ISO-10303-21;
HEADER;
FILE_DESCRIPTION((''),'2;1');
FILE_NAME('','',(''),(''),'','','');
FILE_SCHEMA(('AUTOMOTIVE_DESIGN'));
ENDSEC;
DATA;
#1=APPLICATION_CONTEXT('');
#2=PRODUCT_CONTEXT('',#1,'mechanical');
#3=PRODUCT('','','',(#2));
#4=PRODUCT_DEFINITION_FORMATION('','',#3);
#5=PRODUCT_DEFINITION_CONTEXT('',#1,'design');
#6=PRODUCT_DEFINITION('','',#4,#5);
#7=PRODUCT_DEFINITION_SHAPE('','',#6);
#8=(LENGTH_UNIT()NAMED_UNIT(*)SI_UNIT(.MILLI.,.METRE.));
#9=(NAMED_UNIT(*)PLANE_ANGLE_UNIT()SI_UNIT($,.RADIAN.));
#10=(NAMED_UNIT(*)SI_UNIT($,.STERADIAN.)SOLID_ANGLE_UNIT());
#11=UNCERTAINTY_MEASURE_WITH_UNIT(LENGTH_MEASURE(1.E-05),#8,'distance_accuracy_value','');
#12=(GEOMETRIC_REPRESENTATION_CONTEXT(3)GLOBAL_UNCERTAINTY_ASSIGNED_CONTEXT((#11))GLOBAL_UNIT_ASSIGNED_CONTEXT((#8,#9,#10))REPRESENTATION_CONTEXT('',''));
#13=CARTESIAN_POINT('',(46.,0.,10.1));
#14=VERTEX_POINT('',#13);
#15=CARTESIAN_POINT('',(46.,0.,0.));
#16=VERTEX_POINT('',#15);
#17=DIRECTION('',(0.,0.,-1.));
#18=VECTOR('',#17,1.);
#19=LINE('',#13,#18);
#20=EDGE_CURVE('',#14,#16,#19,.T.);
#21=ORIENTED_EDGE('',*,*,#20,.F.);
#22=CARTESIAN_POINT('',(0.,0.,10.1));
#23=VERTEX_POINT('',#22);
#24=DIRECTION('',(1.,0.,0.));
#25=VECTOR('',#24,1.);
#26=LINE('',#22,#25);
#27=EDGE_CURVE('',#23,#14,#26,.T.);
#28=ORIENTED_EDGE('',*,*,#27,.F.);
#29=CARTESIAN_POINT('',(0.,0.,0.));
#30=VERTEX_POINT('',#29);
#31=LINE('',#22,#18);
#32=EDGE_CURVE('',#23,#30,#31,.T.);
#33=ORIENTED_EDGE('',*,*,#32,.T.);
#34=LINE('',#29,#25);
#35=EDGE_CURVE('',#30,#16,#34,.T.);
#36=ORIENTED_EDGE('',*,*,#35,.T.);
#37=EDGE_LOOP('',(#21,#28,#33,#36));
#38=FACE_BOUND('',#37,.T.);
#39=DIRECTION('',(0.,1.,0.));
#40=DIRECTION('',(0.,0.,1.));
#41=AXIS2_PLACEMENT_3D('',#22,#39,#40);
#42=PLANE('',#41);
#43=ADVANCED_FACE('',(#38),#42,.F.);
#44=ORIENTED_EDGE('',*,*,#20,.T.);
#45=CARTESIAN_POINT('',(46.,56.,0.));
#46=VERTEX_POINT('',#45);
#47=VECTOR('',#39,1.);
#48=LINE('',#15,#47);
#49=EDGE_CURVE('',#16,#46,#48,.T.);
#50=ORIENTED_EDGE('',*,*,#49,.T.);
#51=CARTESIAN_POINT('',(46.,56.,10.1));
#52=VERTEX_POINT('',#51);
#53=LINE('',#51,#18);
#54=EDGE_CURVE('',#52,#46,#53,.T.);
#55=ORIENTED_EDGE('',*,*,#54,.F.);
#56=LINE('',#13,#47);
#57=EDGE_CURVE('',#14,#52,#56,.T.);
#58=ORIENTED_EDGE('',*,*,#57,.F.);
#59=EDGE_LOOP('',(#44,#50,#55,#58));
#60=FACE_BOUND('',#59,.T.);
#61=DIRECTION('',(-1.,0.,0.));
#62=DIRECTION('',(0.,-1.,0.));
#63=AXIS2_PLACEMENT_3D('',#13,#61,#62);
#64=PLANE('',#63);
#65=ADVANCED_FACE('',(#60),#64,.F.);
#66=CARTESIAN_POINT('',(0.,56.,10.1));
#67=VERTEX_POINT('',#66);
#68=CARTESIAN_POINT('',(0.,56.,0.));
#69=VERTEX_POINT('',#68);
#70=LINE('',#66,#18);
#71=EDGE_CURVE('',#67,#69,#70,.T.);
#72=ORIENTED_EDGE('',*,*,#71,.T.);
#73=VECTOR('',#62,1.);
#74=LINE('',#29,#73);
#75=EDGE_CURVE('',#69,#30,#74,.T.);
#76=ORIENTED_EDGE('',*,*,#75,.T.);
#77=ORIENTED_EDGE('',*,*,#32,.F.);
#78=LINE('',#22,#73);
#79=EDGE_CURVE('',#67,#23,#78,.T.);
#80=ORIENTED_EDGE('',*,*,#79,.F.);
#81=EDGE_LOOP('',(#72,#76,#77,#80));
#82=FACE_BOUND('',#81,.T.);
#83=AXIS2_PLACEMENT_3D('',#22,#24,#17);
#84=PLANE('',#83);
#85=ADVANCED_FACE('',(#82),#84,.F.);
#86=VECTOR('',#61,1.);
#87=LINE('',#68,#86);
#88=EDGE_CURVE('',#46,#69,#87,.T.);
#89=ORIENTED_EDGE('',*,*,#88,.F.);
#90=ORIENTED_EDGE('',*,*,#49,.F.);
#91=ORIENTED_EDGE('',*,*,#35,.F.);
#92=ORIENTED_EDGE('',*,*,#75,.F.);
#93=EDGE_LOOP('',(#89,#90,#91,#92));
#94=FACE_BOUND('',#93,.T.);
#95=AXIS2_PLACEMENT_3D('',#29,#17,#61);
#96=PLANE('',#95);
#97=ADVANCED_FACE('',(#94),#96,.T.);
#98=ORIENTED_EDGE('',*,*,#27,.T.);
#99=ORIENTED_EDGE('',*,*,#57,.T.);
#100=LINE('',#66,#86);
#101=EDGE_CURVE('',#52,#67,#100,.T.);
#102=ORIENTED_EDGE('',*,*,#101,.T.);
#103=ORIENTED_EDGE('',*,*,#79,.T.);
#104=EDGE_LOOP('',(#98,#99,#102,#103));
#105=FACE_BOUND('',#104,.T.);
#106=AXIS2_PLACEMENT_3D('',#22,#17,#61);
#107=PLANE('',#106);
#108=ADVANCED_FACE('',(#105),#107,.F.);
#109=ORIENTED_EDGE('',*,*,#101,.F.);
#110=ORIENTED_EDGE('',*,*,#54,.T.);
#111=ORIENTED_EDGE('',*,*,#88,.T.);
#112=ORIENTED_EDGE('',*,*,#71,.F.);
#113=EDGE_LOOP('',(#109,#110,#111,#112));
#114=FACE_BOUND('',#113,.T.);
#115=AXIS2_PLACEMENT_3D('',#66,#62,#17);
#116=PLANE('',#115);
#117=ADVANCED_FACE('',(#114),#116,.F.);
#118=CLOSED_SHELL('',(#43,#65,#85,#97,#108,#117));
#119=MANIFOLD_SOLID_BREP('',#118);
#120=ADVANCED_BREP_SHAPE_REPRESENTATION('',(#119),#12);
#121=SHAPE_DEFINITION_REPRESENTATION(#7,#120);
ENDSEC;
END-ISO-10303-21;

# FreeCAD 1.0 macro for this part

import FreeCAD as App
import Part
import Sketcher
from FreeCAD import Vector

doc = App.newDocument("Part")
params = doc.addObject("Spreadsheet::Sheet", "Params")
for row, (alias, value) in enumerate([
    ("sketch1_width", "46 mm"),
    ("sketch1_height", "56 mm"),
    ("pad1_length", "10.1 mm"),
], start=1):
    params.set(f"A{row}", alias)
    params.set(f"B{row}", "=" + value)
    params.setAlias(f"B{row}", alias)

body = doc.addObject("PartDesign::Body", "Body")

# Sketch on XY plane
sketch1 = body.newObject("Sketcher::SketchObject", "Sketch")
sketch1.AttachmentSupport = (doc.getObject("XY_Plane"), [""])
sketch1.MapMode = "FlatFace"
sketch1.addGeometry(Part.LineSegment(Vector(0, 56, 0), Vector(0, 0, 0)), False)
sketch1.addGeometry(Part.LineSegment(Vector(0, 0, 0), Vector(46, 0, 0)), False)
sketch1.addGeometry(Part.LineSegment(Vector(46, 0, 0), Vector(46, 56, 0)), False)
sketch1.addGeometry(Part.LineSegment(Vector(46, 56, 0), Vector(0, 56, 0)), False)
sketch1.addConstraint(Sketcher.Constraint("Coincident", 0, 2, 1, 1))
sketch1.addConstraint(Sketcher.Constraint("Coincident", 1, 2, 2, 1))
sketch1.addConstraint(Sketcher.Constraint("Coincident", 2, 2, 3, 1))
sketch1.addConstraint(Sketcher.Constraint("Coincident", 3, 2, 0, 1))
sketch1.addConstraint(Sketcher.Constraint("Vertical", 0))
sketch1.addConstraint(Sketcher.Constraint("Horizontal", 1))
sketch1.addConstraint(Sketcher.Constraint("Vertical", 2))
sketch1.addConstraint(Sketcher.Constraint("Horizontal", 3))
sketch1.addConstraint(Sketcher.Constraint("Coincident", 0, 2, -1, 1))
sketch1.addConstraint(Sketcher.Constraint("DistanceX", 1, 1, 1, 2, 46.0))
sketch1.addConstraint(Sketcher.Constraint("DistanceY", 0, 2, 0, 1, 56.0))
sketch1.setExpression("Constraints[9]", "Params.sketch1_width")
sketch1.setExpression("Constraints[10]", "Params.sketch1_height")
pad1 = body.newObject("PartDesign::Pad", "Pad")
pad1.Profile = sketch1
pad1.setExpression("Length", "Params.pad1_length")

doc.recompute()
